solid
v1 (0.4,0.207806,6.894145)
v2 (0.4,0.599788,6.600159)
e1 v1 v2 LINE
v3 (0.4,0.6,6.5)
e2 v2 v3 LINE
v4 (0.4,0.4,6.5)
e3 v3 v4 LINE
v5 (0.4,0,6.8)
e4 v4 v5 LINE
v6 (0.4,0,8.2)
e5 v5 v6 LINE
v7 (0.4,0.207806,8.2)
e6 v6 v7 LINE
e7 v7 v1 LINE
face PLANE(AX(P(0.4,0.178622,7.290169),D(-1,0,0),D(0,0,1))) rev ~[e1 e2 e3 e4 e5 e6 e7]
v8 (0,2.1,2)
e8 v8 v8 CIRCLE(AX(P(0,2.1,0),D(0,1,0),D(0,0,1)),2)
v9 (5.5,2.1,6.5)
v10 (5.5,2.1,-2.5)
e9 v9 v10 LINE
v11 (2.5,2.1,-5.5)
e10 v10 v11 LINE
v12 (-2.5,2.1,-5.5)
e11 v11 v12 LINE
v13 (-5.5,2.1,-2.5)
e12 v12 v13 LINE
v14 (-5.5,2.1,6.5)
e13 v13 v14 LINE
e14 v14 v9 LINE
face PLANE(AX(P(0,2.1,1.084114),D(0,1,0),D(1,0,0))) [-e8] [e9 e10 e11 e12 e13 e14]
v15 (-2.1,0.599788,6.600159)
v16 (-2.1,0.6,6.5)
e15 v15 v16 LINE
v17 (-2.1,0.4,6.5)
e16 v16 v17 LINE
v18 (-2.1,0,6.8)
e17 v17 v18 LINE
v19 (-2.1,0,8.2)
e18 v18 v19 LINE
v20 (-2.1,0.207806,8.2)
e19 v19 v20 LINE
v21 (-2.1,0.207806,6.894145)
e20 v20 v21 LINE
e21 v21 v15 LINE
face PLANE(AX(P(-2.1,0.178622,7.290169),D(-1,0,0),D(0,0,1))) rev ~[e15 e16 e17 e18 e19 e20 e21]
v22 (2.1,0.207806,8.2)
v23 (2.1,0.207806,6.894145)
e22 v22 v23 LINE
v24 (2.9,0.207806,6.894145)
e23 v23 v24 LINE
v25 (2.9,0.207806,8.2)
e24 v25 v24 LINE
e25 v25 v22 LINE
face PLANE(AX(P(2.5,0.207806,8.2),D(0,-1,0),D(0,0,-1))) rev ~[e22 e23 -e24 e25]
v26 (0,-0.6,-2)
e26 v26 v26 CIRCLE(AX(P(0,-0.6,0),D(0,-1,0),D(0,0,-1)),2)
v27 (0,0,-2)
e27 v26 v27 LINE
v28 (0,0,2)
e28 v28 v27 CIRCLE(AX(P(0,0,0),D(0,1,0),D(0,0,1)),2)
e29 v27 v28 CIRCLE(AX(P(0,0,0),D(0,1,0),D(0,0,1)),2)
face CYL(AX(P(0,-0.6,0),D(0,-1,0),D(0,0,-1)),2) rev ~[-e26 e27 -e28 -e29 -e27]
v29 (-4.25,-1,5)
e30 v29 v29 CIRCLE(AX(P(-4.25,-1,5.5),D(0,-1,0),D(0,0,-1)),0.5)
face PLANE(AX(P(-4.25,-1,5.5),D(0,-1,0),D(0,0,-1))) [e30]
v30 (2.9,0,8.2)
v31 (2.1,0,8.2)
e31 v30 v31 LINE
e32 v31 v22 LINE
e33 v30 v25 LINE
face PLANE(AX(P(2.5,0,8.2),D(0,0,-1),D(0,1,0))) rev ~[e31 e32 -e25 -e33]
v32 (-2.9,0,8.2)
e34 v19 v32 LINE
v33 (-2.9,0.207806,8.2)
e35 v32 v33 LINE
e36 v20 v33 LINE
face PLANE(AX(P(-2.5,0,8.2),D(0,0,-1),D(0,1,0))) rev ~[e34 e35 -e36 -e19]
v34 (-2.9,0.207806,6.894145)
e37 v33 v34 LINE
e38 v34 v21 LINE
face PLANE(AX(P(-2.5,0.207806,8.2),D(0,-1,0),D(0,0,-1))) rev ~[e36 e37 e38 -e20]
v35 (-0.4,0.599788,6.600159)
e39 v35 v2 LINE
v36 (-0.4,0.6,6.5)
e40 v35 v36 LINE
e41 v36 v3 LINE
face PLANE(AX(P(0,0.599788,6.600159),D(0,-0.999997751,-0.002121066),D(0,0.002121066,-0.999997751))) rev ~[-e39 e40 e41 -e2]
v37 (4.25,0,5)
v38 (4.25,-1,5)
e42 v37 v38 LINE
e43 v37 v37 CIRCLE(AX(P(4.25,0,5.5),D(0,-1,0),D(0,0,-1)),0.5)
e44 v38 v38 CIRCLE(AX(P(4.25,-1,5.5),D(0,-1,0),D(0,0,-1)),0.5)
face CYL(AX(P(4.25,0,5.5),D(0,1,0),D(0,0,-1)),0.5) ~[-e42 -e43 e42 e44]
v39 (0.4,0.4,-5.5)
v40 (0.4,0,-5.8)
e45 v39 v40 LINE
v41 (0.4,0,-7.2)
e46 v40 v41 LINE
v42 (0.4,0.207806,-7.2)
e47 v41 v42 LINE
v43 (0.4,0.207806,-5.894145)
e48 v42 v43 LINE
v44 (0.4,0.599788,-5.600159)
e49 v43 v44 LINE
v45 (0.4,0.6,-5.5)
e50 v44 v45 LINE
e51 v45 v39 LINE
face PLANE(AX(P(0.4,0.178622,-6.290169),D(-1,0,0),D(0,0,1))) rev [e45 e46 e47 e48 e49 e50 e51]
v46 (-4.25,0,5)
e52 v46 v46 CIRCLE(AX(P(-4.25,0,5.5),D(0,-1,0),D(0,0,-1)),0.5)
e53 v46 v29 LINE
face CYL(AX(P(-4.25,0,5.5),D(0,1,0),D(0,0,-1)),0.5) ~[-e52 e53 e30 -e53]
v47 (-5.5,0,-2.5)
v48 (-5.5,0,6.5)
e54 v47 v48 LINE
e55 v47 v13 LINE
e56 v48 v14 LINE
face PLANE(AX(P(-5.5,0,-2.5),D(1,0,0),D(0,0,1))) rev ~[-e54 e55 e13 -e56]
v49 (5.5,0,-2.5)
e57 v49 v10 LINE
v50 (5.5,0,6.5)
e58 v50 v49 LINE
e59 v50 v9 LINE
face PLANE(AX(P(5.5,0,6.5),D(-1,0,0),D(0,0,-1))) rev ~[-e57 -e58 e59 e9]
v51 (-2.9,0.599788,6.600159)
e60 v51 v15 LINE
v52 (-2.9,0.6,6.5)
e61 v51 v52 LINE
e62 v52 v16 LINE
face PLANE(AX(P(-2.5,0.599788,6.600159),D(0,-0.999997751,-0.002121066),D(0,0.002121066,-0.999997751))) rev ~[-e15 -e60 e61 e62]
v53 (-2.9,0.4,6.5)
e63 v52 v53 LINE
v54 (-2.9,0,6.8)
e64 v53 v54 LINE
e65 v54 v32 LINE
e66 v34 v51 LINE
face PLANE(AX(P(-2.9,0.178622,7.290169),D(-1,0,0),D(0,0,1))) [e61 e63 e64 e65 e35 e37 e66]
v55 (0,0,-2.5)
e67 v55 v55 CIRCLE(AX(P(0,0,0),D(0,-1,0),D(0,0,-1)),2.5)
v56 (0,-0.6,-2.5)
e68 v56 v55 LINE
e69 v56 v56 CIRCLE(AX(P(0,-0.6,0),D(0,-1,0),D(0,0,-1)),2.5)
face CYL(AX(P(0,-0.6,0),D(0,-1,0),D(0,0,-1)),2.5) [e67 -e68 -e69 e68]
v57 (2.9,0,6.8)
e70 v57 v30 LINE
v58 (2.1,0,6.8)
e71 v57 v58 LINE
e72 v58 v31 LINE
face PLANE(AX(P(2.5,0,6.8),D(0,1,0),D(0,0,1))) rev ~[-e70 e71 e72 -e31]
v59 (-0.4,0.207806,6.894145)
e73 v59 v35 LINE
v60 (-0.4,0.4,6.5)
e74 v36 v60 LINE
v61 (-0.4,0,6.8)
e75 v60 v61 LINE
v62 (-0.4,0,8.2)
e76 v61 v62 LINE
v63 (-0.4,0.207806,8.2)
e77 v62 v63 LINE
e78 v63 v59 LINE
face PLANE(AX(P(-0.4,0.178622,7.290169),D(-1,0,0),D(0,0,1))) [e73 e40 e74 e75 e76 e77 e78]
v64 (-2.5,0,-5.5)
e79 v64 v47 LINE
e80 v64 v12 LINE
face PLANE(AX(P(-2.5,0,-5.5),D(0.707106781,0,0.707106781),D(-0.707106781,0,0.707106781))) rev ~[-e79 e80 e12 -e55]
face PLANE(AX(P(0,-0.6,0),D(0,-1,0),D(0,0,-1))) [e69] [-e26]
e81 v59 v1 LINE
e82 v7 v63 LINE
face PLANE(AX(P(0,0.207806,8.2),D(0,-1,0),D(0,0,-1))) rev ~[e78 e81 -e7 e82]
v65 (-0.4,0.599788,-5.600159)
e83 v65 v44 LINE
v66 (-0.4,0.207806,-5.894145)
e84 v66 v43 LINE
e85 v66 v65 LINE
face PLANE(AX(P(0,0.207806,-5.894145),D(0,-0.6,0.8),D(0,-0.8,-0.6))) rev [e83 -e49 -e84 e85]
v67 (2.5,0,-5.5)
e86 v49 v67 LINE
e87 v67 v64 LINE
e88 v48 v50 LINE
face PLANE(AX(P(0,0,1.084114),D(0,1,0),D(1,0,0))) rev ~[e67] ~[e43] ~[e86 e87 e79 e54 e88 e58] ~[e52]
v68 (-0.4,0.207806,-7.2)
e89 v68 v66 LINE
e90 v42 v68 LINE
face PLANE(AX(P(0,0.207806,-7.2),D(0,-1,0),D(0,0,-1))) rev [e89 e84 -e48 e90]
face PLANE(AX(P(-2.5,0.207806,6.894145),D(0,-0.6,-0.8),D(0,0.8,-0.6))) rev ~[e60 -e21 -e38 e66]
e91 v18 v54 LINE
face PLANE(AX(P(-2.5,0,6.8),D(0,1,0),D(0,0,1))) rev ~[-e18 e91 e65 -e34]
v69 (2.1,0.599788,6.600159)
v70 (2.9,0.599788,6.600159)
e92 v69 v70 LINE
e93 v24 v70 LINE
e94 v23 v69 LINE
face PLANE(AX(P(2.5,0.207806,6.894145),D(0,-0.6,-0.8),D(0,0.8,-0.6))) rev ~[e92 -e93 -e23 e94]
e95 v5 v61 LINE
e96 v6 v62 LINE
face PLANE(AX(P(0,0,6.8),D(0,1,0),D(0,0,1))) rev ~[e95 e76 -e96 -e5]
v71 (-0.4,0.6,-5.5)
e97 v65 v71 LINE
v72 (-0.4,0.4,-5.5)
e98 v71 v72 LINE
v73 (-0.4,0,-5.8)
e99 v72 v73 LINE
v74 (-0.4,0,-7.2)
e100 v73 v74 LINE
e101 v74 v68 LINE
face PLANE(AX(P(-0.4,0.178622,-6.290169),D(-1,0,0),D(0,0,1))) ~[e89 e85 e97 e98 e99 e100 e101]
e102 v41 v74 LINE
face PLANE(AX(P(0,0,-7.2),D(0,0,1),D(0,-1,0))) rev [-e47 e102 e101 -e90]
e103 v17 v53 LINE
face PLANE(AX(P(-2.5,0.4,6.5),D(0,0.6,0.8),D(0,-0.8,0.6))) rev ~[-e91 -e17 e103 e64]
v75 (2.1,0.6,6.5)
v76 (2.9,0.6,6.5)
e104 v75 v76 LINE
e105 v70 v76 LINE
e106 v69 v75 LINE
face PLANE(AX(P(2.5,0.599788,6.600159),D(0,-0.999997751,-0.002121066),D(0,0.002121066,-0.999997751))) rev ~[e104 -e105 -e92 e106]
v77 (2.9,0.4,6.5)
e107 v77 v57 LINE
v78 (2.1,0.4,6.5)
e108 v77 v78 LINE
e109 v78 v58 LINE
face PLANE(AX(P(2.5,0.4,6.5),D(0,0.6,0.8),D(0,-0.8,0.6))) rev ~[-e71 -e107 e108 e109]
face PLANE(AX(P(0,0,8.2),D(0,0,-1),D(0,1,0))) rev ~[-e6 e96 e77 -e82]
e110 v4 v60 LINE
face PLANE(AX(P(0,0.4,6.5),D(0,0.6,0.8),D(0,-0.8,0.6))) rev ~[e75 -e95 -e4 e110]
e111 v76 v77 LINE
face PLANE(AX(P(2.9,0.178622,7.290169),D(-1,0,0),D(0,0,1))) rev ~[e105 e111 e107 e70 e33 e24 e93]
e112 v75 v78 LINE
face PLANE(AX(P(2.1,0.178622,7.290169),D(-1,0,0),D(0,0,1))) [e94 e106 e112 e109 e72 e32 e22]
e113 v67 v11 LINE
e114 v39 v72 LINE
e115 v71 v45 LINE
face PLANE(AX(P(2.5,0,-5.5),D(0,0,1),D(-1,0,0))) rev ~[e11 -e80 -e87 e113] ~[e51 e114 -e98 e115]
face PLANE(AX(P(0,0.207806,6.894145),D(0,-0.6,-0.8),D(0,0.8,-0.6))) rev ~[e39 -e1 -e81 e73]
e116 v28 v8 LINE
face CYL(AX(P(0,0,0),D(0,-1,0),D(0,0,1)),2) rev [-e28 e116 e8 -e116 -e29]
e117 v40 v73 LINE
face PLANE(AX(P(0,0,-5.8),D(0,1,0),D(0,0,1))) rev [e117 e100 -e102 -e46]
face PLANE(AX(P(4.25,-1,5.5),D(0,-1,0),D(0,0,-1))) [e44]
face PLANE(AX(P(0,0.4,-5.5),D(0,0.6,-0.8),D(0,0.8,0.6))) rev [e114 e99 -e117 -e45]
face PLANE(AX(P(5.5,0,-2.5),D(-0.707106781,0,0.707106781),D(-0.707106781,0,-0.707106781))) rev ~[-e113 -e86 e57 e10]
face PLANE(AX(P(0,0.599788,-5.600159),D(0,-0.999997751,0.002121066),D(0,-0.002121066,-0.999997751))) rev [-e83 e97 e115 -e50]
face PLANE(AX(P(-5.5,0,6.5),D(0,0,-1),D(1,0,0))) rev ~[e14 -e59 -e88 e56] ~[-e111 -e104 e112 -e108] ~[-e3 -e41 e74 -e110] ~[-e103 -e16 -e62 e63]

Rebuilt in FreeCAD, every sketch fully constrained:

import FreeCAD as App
import Part
import Sketcher

V = App.Vector

doc = App.newDocument("Part")
params = doc.addObject("Spreadsheet::Sheet", "Params")
for row, (alias, value) in enumerate([
    ("sketch1_diameter", "4 mm"),
    ("sketch1_width", "11 mm"),
    ("sketch1_width2", "5 mm"),
    ("sketch1_height", "9 mm"),
    ("pad1_length", "2.1 mm"),
    ("sketch2_diameter", "5 mm"),
    ("sketch2_diameter2", "4 mm"),
    ("pad2_length", "0.6 mm"),
    ("sketch3_diameter", "1 mm"),
    ("pad3_length", "1 mm"),
    ("sketch4_width", "0.2 mm"),
    ("sketch4_height", "1.4 mm"),
    ("sketch4_length", "0.5 mm"),
    ("pad4_length", "0.8 mm"),
    ("linearpattern_pitch", "2.5 mm"),
    ("linearpattern2_pitch", "2.5 mm"),
], start=1):
    params.set(f"A{row}", alias)
    params.set(f"B{row}", "=" + value)
    params.setAlias(f"B{row}", alias)

body = doc.addObject("PartDesign::Body", "Body")

# Sketch on XZ plane
sketch1 = doc.addObject("Sketcher::SketchObject", "Sketch")
body.addObject(sketch1)
sketch1.AttachmentSupport = (doc.XZ_Plane, [""])
sketch1.MapMode = "FlatFace"
sketch1.addGeometry([
    Part.LineSegment(V(-5.5, 6.5, 0), V(5.5, 6.5, 0)),  # 0
    Part.LineSegment(V(5.5, 6.5, 0), V(5.5, -2.5, 0)),  # 1
    Part.LineSegment(V(5.5, -2.5, 0), V(2.5, -5.5, 0)),  # 2
    Part.LineSegment(V(2.5, -5.5, 0), V(-2.5, -5.5, 0)),  # 3
    Part.LineSegment(V(-2.5, -5.5, 0), V(-5.5, -2.5, 0)),  # 4
    Part.LineSegment(V(-5.5, -2.5, 0), V(-5.5, 6.5, 0)),  # 5
    Part.Circle(V(0, 0, 0), V(0, 0, 1), 2),  # 6
], False)
sketch1.addConstraint([
    Sketcher.Constraint("Coincident", 0, 2, 1, 1),
    Sketcher.Constraint("Coincident", 1, 2, 2, 1),
    Sketcher.Constraint("Coincident", 2, 2, 3, 1),
    Sketcher.Constraint("Coincident", 3, 2, 4, 1),
    Sketcher.Constraint("Coincident", 4, 2, 5, 1),
    Sketcher.Constraint("Coincident", 5, 2, 0, 1),
    Sketcher.Constraint("Horizontal", 0),
    Sketcher.Constraint("Vertical", 1),
    Sketcher.Constraint("Horizontal", 3),
    Sketcher.Constraint("Vertical", 5),
    Sketcher.Constraint("Coincident", 6, 3, -1, 1),
    Sketcher.Constraint("Symmetric", 1, 2, 4, 2, -2),
    Sketcher.Constraint("Perpendicular", 2, 4),
    Sketcher.Constraint("Equal", 2, 4),
    Sketcher.Constraint("Diameter", 6, 4.0),
    Sketcher.Constraint("DistanceX", 0, 1, 0, 2, 11.0),
    Sketcher.Constraint("DistanceX", 3, 2, 3, 1, 5.0),
    Sketcher.Constraint("DistanceY", 1, 2, 1, 1, 9.0),
    Sketcher.Constraint("DistanceY", -1, 1, 0, 2, 6.5),
])
sketch1.setExpression("Constraints[14]", "Params.sketch1_diameter")
sketch1.setExpression("Constraints[15]", "Params.sketch1_width")
sketch1.setExpression("Constraints[16]", "Params.sketch1_width2")
sketch1.setExpression("Constraints[17]", "Params.sketch1_height")
pad1 = doc.addObject("PartDesign::Pad", "Pad")
body.addObject(pad1)
pad1.Profile = sketch1
pad1.setExpression("Length", "Params.pad1_length")
pad1.Reversed = True

# Sketch on XZ plane
sketch2 = doc.addObject("Sketcher::SketchObject", "Sketch001")
body.addObject(sketch2)
sketch2.AttachmentSupport = (doc.XZ_Plane, [""])
sketch2.MapMode = "FlatFace"
sketch2.AttachmentOffset = App.Placement(V(0, 0, 0.6), App.Rotation())
sketch2.addGeometry([
    Part.Circle(V(0, 0, 0), V(0, 0, 1), 2.5),
    Part.Circle(V(0, 0, 0), V(0, 0, 1), 2),
], False)
sketch2.addConstraint([
    Sketcher.Constraint("Coincident", 0, 3, -1, 1),
    Sketcher.Constraint("Coincident", 1, 3, -1, 1),
    Sketcher.Constraint("Diameter", 0, 5.0),
    Sketcher.Constraint("Diameter", 1, 4.0),
])
sketch2.setExpression("Constraints[2]", "Params.sketch2_diameter")
sketch2.setExpression("Constraints[3]", "Params.sketch2_diameter2")
pad2 = doc.addObject("PartDesign::Pad", "Pad001")
body.addObject(pad2)
pad2.Profile = sketch2
pad2.setExpression("Length", "Params.pad2_length")
pad2.Reversed = True

# Sketch on XZ plane
sketch3 = doc.addObject("Sketcher::SketchObject", "Sketch002")
body.addObject(sketch3)
sketch3.AttachmentSupport = (doc.XZ_Plane, [""])
sketch3.MapMode = "FlatFace"
sketch3.addGeometry([
    Part.Circle(V(4.3, 5.5, 0), V(0, 0, 1), 0.5),
    Part.Circle(V(-4.2, 5.5, 0), V(0, 0, 1), 0.5),
], False)
sketch3.addConstraint([
    Sketcher.Constraint("Equal", 0, 1),
    Sketcher.Constraint("Symmetric", 0, 3, 1, 3, -2),
    Sketcher.Constraint("Diameter", 0, 1.0),
    Sketcher.Constraint("DistanceY", -1, 1, 0, 3, 5.5),
    Sketcher.Constraint("DistanceX", 1, 3, 0, 3, 8.5),
])
sketch3.setExpression("Constraints[2]", "Params.sketch3_diameter")
pad3 = doc.addObject("PartDesign::Pad", "Pad002")
body.addObject(pad3)
pad3.Profile = sketch3
pad3.setExpression("Length", "Params.pad3_length")

# Sketch on YZ plane
sketch4 = doc.addObject("Sketcher::SketchObject", "Sketch003")
body.addObject(sketch4)
sketch4.AttachmentSupport = (doc.YZ_Plane, [""])
sketch4.MapMode = "FlatFace"
sketch4.addGeometry([
    Part.LineSegment(V(0.4, 6.5, 0), V(0.6, 6.5, 0)),  # 0
    Part.LineSegment(V(0.6, 6.5, 0), V(0.6, 6.6, 0)),  # 1
    Part.LineSegment(V(0.6, 6.6, 0), V(0.21, 6.89, 0)),  # 2
    Part.LineSegment(V(0.21, 6.89, 0), V(0.21, 8.2, 0)),  # 3
    Part.LineSegment(V(0.21, 8.2, 0), V(0, 8.2, 0)),  # 4
    Part.LineSegment(V(0, 8.2, 0), V(0, 6.8, 0)),  # 5
    Part.LineSegment(V(0, 6.8, 0), V(0.4, 6.5, 0)),  # 6
], False)
sketch4.addConstraint([
    Sketcher.Constraint("Coincident", 0, 2, 1, 1),
    Sketcher.Constraint("Coincident", 1, 2, 2, 1),
    Sketcher.Constraint("Coincident", 2, 2, 3, 1),
    Sketcher.Constraint("Coincident", 3, 2, 4, 1),
    Sketcher.Constraint("Coincident", 4, 2, 5, 1),
    Sketcher.Constraint("Coincident", 5, 2, 6, 1),
    Sketcher.Constraint("Coincident", 6, 2, 0, 1),
    Sketcher.Constraint("Horizontal", 0),
    Sketcher.Constraint("Vertical", 3),
    Sketcher.Constraint("Horizontal", 4),
    Sketcher.Constraint("Vertical", 5),
    Sketcher.Constraint("PointOnObject", 4, 2, -2),
    Sketcher.Constraint("Parallel", 2, 6),
    Sketcher.Constraint("DistanceX", 0, 1, 0, 2, 0.2),
    Sketcher.Constraint("DistanceY", 5, 2, 5, 1, 1.4),
    Sketcher.Constraint("Distance", 6, 0.5),
    Sketcher.Constraint("DistanceX", -1, 1, 0, 2, 0.6),
    Sketcher.Constraint("DistanceY", -1, 1, 0, 2, 6.5),
    Sketcher.Constraint("Distance", 1, 0.10016),
    Sketcher.Constraint("DistanceX", 4, 2, 4, 1, 0.207806),
    Sketcher.Constraint("DistanceY", 3, 1, 3, 2, 1.305855),
])
sketch4.setExpression("Constraints[13]", "Params.sketch4_width")
sketch4.setExpression("Constraints[14]", "Params.sketch4_height")
sketch4.setExpression("Constraints[15]", "Params.sketch4_length")
pad4 = doc.addObject("PartDesign::Pad", "Pad003")
body.addObject(pad4)
pad4.Profile = sketch4
pad4.setExpression("Length", "Params.pad4_length")
pad4.Midplane = True
doc.recompute()

linearpattern = doc.addObject("PartDesign::LinearPattern", "LinearPattern")
body.addObject(linearpattern)
linearpattern.Originals = [pad4]
linearpattern.Direction = (doc.X_Axis, [""])
linearpattern.Mode = "offset"
linearpattern.setExpression("Offset", "Params.linearpattern_pitch")
linearpattern.Occurrences = 2
body.Tip = linearpattern
doc.recompute()

linearpattern2 = doc.addObject("PartDesign::LinearPattern", "LinearPattern001")
body.addObject(linearpattern2)
linearpattern2.Originals = [pad4]
linearpattern2.Direction = (doc.X_Axis, [""])
linearpattern2.Mode = "offset"
linearpattern2.setExpression("Offset", "Params.linearpattern2_pitch")
linearpattern2.Occurrences = 2
linearpattern2.Reversed = True
body.Tip = linearpattern2
doc.recompute()

datumplane = doc.addObject("PartDesign::Plane", "DatumPlane")
body.addObject(datumplane)
datumplane.AttachmentSupport = (doc.XY_Plane, [""])
datumplane.MapMode = "FlatFace"
datumplane.AttachmentOffset = App.Placement(V(0, 0, 0.5), App.Rotation())
mirrored = doc.addObject("PartDesign::Mirrored", "Mirrored")
body.addObject(mirrored)
mirrored.Originals = [pad4]
mirrored.MirrorPlane = (datumplane, [""])
body.Tip = mirrored

doc.recompute()
